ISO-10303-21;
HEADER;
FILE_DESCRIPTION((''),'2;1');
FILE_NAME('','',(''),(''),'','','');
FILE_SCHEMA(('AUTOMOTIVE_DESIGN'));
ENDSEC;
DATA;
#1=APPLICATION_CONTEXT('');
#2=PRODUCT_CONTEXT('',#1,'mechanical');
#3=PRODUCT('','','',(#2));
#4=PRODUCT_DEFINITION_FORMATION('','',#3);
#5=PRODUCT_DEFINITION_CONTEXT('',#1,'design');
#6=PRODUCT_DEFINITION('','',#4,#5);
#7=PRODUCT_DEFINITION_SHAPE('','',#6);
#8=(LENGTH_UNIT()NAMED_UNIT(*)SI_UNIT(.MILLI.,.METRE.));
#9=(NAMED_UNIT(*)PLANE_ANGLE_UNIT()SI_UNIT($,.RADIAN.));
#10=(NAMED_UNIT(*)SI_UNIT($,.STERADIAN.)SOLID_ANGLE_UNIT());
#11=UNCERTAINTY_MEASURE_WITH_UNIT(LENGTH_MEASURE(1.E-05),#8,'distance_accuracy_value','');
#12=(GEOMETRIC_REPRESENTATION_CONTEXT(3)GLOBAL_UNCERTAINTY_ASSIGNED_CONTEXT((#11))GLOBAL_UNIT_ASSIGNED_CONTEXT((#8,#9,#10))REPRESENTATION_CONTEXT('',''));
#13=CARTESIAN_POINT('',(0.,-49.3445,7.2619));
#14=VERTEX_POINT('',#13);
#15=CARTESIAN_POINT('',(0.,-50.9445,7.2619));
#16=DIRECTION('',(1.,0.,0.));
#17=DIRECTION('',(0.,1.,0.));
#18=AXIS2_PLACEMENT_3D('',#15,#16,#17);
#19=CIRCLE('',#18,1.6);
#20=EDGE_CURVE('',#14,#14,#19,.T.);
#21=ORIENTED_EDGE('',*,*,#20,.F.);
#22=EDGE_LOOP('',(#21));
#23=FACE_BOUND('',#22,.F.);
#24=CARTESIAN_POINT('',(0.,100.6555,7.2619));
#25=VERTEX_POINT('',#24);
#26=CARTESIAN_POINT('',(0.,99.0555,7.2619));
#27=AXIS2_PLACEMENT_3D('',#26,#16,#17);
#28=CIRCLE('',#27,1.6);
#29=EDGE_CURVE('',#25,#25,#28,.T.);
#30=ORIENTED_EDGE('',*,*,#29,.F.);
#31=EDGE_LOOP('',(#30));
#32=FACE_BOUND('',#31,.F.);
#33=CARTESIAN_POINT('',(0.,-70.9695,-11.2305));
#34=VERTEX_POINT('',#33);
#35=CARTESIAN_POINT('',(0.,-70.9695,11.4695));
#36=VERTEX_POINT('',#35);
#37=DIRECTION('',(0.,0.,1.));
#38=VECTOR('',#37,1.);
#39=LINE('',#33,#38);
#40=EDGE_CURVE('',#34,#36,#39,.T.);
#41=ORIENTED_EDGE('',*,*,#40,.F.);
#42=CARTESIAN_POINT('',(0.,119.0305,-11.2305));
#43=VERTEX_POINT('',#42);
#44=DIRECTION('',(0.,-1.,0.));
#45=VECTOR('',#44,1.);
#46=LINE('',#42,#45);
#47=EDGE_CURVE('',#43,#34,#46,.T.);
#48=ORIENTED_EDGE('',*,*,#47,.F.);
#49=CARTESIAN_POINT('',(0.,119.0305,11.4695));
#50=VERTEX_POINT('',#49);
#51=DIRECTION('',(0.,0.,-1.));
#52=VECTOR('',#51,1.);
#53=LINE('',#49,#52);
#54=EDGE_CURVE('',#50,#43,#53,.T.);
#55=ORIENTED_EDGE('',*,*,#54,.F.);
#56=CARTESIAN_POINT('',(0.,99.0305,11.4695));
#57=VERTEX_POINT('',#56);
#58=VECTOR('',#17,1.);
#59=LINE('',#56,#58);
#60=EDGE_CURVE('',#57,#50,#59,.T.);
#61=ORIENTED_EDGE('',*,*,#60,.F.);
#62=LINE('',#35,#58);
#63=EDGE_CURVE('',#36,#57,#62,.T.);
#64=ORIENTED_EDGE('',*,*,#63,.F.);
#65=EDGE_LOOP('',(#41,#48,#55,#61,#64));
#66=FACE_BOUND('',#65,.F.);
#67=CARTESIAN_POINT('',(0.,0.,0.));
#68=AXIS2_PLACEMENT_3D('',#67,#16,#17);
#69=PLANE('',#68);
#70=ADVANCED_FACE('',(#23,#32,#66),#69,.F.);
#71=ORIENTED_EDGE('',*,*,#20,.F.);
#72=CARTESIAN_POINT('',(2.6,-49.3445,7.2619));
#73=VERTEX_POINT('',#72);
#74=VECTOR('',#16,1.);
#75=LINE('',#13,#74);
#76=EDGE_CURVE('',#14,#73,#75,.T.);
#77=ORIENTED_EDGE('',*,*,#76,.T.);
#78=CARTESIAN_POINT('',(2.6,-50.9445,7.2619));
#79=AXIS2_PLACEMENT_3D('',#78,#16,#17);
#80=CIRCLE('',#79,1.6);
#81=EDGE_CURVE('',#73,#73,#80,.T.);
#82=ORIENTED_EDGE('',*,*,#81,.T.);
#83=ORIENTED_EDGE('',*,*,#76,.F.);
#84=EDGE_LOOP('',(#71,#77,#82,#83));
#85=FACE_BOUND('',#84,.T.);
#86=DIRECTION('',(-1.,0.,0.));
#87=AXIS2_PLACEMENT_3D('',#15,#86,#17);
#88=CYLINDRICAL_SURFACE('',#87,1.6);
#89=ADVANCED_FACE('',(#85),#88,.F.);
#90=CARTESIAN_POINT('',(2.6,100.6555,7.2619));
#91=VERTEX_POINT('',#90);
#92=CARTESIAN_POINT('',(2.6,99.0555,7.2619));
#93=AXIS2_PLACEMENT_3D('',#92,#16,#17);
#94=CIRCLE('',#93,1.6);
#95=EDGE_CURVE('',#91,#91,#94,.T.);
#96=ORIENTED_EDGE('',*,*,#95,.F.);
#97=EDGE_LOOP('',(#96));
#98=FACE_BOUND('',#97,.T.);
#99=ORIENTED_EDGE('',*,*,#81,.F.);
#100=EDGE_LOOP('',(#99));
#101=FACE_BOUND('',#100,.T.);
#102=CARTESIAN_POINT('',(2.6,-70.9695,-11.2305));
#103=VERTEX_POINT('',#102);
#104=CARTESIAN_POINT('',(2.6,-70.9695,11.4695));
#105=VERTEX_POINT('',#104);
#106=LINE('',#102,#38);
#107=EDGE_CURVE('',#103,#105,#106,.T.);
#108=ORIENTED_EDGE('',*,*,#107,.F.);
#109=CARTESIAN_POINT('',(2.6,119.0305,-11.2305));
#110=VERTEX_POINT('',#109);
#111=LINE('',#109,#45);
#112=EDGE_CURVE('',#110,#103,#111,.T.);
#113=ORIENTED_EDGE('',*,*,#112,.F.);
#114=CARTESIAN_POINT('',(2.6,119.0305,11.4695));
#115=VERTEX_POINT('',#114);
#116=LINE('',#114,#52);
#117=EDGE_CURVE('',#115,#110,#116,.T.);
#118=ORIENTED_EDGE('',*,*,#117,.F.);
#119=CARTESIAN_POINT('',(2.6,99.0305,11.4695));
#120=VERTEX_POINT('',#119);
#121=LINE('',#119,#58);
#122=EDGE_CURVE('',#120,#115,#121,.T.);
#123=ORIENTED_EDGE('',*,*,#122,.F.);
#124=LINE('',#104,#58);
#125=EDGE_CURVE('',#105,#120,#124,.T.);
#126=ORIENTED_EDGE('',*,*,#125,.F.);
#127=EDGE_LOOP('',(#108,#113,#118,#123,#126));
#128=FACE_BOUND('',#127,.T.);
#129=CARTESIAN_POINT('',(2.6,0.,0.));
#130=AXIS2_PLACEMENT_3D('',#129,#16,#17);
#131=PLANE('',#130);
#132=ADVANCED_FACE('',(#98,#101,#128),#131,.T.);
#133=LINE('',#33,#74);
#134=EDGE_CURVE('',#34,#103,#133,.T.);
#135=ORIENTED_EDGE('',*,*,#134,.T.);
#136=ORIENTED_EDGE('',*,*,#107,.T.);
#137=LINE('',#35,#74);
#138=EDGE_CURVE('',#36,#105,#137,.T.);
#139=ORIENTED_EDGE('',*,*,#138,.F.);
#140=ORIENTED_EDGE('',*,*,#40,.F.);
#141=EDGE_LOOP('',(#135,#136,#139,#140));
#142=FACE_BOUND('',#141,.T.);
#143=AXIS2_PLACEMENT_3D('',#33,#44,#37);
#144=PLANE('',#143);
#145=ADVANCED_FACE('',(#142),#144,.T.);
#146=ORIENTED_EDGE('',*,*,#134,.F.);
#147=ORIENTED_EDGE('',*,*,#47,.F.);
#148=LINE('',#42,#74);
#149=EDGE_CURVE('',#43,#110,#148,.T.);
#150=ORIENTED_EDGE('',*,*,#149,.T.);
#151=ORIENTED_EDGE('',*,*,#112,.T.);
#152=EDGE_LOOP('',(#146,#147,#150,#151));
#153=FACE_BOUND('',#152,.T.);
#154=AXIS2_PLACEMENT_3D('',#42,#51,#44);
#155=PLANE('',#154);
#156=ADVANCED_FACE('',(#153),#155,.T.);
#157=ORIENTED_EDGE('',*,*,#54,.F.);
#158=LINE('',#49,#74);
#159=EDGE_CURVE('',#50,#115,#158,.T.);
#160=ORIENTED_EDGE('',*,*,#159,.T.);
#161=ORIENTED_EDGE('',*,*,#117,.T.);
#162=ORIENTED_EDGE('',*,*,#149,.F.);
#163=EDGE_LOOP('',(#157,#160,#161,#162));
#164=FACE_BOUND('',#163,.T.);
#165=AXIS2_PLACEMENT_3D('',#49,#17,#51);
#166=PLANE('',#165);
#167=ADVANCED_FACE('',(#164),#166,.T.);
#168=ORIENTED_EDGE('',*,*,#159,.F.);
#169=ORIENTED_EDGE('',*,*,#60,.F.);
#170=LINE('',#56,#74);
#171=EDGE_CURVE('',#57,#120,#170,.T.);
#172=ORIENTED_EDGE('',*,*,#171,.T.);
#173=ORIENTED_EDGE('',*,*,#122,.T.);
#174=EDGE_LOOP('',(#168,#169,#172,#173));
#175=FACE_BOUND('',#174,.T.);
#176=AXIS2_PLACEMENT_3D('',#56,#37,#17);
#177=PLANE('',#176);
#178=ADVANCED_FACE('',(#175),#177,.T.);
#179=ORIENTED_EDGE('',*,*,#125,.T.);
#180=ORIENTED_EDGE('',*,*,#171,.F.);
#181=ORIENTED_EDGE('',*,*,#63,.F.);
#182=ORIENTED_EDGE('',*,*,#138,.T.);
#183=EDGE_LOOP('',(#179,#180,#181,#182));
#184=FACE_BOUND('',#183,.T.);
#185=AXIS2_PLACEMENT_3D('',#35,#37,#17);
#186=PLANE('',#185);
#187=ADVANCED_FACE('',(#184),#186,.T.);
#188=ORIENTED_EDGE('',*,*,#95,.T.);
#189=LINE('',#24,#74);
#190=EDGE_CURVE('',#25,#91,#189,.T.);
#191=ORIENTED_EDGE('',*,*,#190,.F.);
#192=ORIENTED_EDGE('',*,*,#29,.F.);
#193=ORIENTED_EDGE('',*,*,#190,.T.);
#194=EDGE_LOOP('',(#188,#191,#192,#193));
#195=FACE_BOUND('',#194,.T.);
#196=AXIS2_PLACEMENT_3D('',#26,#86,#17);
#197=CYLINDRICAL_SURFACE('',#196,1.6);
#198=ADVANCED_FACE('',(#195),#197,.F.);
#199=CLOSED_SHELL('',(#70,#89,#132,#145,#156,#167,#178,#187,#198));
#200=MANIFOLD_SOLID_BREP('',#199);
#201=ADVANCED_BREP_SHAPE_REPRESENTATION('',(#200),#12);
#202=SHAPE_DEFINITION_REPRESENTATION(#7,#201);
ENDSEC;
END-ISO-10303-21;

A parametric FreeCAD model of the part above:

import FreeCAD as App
import Part
import Sketcher
Q = App.Units.Quantity


def add_polygon(sketch, points):
    """Adds a closed chain of lines whose ends are joined by coincident constraints."""
    first, n = sketch.GeometryCount, len(points)
    for a, b in zip(points, points[1:] + points[:1]):
        sketch.addGeometry(Part.LineSegment(App.Vector(*a, 0), App.Vector(*b, 0)), False)
    for i in range(n):
        sketch.addConstraint(Sketcher.Constraint("Coincident", first + i, 2, first + (i + 1) % n, 1))

doc = App.newDocument("Part")
body = doc.addObject("PartDesign::Body", "Body")

# Sketch on YZ plane
sketch1 = body.newObject("Sketcher::SketchObject", "Sketch")
sketch1.AttachmentSupport = (doc.getObject("YZ_Plane"), [""])
sketch1.MapMode = "FlatFace"
add_polygon(sketch1, [(119, 11.5), (-71, 11.5), (-71, -11.2), (119, -11.2)])  # lines 0-3
sketch1.addGeometry(Part.Circle(App.Vector(-50.9, 7.3, 0), App.Vector(0, 0, 1), 1.6), False)  # 4
sketch1.addGeometry(Part.Circle(App.Vector(99.1, 7.3, 0), App.Vector(0, 0, 1), 1.6), False)  # 5
sketch1.addConstraint(Sketcher.Constraint("Horizontal", 0))
sketch1.addConstraint(Sketcher.Constraint("Vertical", 1))
sketch1.addConstraint(Sketcher.Constraint("Horizontal", 2))
sketch1.addConstraint(Sketcher.Constraint("Vertical", 3))
sketch1.addConstraint(Sketcher.Constraint("Equal", 4, 5))
sketch1.addConstraint(Sketcher.Constraint("Horizontal", 4, 3, 5, 3))
sketch1.addConstraint(Sketcher.Constraint("Diameter", 4, Q("3.2 mm")))
sketch1.addConstraint(Sketcher.Constraint("DistanceX", 0, 2, 0, 1, Q("190 mm")))
sketch1.addConstraint(Sketcher.Constraint("DistanceY", 1, 2, 1, 1, Q("22.7 mm")))
sketch1.addConstraint(Sketcher.Constraint("DistanceX", 4, 3, 5, 3, Q("150 mm")))
sketch1.addConstraint(Sketcher.Constraint("DistanceY", -1, 1, 4, 3, Q("7.262 mm")))
sketch1.addConstraint(Sketcher.Constraint("DistanceX", 0, 2, 4, 3, Q("20.025 mm")))
sketch1.addConstraint(Sketcher.Constraint("DistanceX", 4, 3, -1, 1, Q("50.9445 mm")))
sketch1.addConstraint(Sketcher.Constraint("DistanceY", -1, 1, 0, 2, Q("11.4695 mm")))
pad1 = body.newObject("PartDesign::Pad", "Pad")
pad1.Profile = sketch1
pad1.Length = 2.6

doc.recompute()
